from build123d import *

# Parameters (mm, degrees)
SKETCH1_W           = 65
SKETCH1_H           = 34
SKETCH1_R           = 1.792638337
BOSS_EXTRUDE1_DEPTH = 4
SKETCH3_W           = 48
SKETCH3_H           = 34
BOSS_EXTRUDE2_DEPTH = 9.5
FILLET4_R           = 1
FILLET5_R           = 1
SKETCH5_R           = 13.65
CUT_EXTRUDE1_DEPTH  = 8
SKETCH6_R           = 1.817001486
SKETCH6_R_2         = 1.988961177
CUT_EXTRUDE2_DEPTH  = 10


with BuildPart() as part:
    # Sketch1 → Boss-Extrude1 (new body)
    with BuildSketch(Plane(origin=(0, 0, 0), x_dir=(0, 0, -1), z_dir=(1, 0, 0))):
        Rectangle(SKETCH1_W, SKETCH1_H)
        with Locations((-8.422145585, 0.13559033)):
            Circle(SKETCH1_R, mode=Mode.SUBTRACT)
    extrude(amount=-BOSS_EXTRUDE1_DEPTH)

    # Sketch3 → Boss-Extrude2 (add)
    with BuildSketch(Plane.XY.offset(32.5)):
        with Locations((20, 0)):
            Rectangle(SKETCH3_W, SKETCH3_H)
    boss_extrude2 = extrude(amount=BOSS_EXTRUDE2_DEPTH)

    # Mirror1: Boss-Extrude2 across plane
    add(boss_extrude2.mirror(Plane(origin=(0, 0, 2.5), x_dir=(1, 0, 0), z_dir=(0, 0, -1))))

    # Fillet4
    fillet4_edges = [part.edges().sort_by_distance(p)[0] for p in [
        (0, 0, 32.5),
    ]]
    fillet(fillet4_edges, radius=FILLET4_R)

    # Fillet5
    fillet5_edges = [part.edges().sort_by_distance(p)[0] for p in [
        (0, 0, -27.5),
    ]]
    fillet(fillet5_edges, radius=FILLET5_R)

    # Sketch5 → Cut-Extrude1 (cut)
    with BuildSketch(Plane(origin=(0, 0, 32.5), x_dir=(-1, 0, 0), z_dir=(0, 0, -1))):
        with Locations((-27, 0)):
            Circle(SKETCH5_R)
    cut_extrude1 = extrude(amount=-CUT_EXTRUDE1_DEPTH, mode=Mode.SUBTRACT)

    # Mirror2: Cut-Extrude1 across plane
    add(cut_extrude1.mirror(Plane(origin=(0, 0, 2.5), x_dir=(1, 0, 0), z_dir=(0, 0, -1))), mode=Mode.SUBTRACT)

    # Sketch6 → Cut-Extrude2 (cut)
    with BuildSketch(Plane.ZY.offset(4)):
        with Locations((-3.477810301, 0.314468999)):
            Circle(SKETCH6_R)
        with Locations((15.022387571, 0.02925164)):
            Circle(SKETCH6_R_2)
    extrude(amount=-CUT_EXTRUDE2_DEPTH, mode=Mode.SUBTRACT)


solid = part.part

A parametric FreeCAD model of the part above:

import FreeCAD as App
import Part
import Sketcher

V = App.Vector
Q = App.Units.Quantity


def edges_at(feature, points):
    """Names of the edges that pass closest to the given points."""
    edges = feature.Shape.Edges
    near = lambda p: min(range(len(edges)), key=lambda i: edges[i].distToShape(Part.Vertex(*p))[0])
    return sorted({f"Edge{near(p) + 1}" for p in points})


def add_polygon(sketch, points):
    """Adds a closed chain of lines whose ends are joined by coincident constraints."""
    first, n = sketch.GeometryCount, len(points)
    for a, b in zip(points, points[1:] + points[:1]):
        sketch.addGeometry(Part.LineSegment(App.Vector(*a, 0), App.Vector(*b, 0)), False)
    for i in range(n):
        sketch.addConstraint(Sketcher.Constraint("Coincident", first + i, 2, first + (i + 1) % n, 1))

doc = App.newDocument("Part")
body = doc.addObject("PartDesign::Body", "Body")

sketch1 = body.newObject("Sketcher::SketchObject", "Sketch")
sketch1.AttachmentSupport = (doc.getObject("YZ_Plane"), [""])
sketch1.MapMode = "FlatFace"
add_polygon(sketch1, [(17, 32.5), (-17, 32.5), (-17, -32.5), (17, -32.5)])
sketch1.addGeometry(Part.Circle(V(0.1, 8.4, 0), V(0, 0, 1), 1.8), False)
sketch1.addConstraint([
    Sketcher.Constraint("Horizontal", 0),
    Sketcher.Constraint("Vertical", 1),
    Sketcher.Constraint("Horizontal", 2),
    Sketcher.Constraint("Vertical", 3),
    Sketcher.Constraint("Symmetric", 0, 2, 2, 2, -1, 1),
    Sketcher.Constraint("DistanceX", 0, 2, 0, 1, Q("34 mm")),
    Sketcher.Constraint("DistanceY", 1, 2, 1, 1, Q("65 mm")),
    Sketcher.Constraint("Diameter", 4, Q("3.585277 mm")),
    Sketcher.Constraint("DistanceX", -1, 1, 4, 3, Q("0.13559 mm")),
    Sketcher.Constraint("DistanceY", -1, 1, 4, 3, Q("8.422146 mm")),
])
pad1 = body.newObject("PartDesign::Pad", "Pad")
pad1.Profile = sketch1
pad1.Length = 4
pad1.Reversed = True

sketch2 = body.newObject("Sketcher::SketchObject", "Sketch001")
sketch2.AttachmentSupport = (doc.getObject("XY_Plane"), [""])
sketch2.MapMode = "FlatFace"
sketch2.AttachmentOffset = App.Placement(V(0, 0, 32.5), App.Rotation())
add_polygon(sketch2, [(-4, 17), (-4, -17), (44, -17), (44, 17)])
sketch2.addConstraint([
    Sketcher.Constraint("Vertical", 0),
    Sketcher.Constraint("Horizontal", 1),
    Sketcher.Constraint("Vertical", 2),
    Sketcher.Constraint("Horizontal", 3),
    Sketcher.Constraint("DistanceX", 1, 1, 1, 2, Q("48 mm")),
    Sketcher.Constraint("DistanceY", 0, 2, 0, 1, Q("34 mm")),
    Sketcher.Constraint("DistanceX", 0, 2, -1, 1, Q("4 mm")),
    Sketcher.Constraint("DistanceY", 0, 2, -1, 1, Q("17 mm")),
])
pad2 = body.newObject("PartDesign::Pad", "Pad001")
pad2.Profile = sketch2
pad2.Length = 9.5
doc.recompute()

datumplane = body.newObject("PartDesign::Plane", "DatumPlane")
datumplane.AttachmentSupport = (doc.getObject("XY_Plane"), [""])
datumplane.MapMode = "FlatFace"
datumplane.AttachmentOffset = App.Placement(V(0, 0, 2.5), App.Rotation())
mirrored = body.newObject("PartDesign::Mirrored", "Mirrored")
mirrored.Originals = [pad2]
mirrored.MirrorPlane = (datumplane, [""])
body.Tip = mirrored
doc.recompute()

fillet = body.newObject("PartDesign::Fillet", "Fillet")
fillet.Base = (mirrored, edges_at(mirrored, [(0, 0, 32.5)]))
fillet.Radius = 1
doc.recompute()

fillet2 = body.newObject("PartDesign::Fillet", "Fillet001")
fillet2.Base = (fillet, edges_at(fillet, [(0, 0, -27.5)]))
fillet2.Radius = 1

sketch3 = body.newObject("Sketcher::SketchObject", "Sketch002")
sketch3.AttachmentSupport = (doc.getObject("XY_Plane"), [""])
sketch3.MapMode = "FlatFace"
sketch3.AttachmentOffset = App.Placement(V(0, 0, 32.5), App.Rotation())
sketch3.addGeometry(Part.Circle(V(27, 0, 0), V(0, 0, 1), 14), False)
sketch3.addConstraint([
    Sketcher.Constraint("PointOnObject", 0, 3, -1),
    Sketcher.Constraint("Diameter", 0, Q("27.3 mm")),
    Sketcher.Constraint("DistanceX", -1, 1, 0, 3, Q("27 mm")),
])
pocket1 = body.newObject("PartDesign::Pocket", "Pocket")
pocket1.Profile = sketch3
pocket1.Length = 8
pocket1.Reversed = True
doc.recompute()

datumplane2 = body.newObject("PartDesign::Plane", "DatumPlane001")
datumplane2.AttachmentSupport = (doc.getObject("XY_Plane"), [""])
datumplane2.MapMode = "FlatFace"
datumplane2.AttachmentOffset = App.Placement(V(0, 0, 2.5), App.Rotation())
mirrored2 = body.newObject("PartDesign::Mirrored", "Mirrored001")
mirrored2.Originals = [pocket1]
mirrored2.MirrorPlane = (datumplane2, [""])
body.Tip = mirrored2

sketch4 = body.newObject("Sketcher::SketchObject", "Sketch003")
sketch4.AttachmentSupport = (doc.getObject("YZ_Plane"), [""])
sketch4.MapMode = "FlatFace"
sketch4.AttachmentOffset = App.Placement(V(0, 0, -4), App.Rotation())
sketch4.addGeometry([
    Part.Circle(V(0.3, -3.5, 0), V(0, 0, 1), 1.8),
    Part.Circle(V(0, 15, 0), V(0, 0, 1), 2),
], False)
sketch4.addConstraint([
    Sketcher.Constraint("Diameter", 0, Q("3.634003 mm")),
    Sketcher.Constraint("Diameter", 1, Q("3.977922 mm")),
    Sketcher.Constraint("DistanceX", -1, 1, 0, 3, Q("0.314469 mm")),
    Sketcher.Constraint("DistanceY", 0, 3, -1, 1, Q("3.47781 mm")),
    Sketcher.Constraint("DistanceX", -1, 1, 1, 3, Q("0.029252 mm")),
    Sketcher.Constraint("DistanceY", -1, 1, 1, 3, Q("15.022388 mm")),
])
pocket2 = body.newObject("PartDesign::Pocket", "Pocket001")
pocket2.Profile = sketch4
pocket2.Length = 10
pocket2.Reversed = True

doc.recompute()
